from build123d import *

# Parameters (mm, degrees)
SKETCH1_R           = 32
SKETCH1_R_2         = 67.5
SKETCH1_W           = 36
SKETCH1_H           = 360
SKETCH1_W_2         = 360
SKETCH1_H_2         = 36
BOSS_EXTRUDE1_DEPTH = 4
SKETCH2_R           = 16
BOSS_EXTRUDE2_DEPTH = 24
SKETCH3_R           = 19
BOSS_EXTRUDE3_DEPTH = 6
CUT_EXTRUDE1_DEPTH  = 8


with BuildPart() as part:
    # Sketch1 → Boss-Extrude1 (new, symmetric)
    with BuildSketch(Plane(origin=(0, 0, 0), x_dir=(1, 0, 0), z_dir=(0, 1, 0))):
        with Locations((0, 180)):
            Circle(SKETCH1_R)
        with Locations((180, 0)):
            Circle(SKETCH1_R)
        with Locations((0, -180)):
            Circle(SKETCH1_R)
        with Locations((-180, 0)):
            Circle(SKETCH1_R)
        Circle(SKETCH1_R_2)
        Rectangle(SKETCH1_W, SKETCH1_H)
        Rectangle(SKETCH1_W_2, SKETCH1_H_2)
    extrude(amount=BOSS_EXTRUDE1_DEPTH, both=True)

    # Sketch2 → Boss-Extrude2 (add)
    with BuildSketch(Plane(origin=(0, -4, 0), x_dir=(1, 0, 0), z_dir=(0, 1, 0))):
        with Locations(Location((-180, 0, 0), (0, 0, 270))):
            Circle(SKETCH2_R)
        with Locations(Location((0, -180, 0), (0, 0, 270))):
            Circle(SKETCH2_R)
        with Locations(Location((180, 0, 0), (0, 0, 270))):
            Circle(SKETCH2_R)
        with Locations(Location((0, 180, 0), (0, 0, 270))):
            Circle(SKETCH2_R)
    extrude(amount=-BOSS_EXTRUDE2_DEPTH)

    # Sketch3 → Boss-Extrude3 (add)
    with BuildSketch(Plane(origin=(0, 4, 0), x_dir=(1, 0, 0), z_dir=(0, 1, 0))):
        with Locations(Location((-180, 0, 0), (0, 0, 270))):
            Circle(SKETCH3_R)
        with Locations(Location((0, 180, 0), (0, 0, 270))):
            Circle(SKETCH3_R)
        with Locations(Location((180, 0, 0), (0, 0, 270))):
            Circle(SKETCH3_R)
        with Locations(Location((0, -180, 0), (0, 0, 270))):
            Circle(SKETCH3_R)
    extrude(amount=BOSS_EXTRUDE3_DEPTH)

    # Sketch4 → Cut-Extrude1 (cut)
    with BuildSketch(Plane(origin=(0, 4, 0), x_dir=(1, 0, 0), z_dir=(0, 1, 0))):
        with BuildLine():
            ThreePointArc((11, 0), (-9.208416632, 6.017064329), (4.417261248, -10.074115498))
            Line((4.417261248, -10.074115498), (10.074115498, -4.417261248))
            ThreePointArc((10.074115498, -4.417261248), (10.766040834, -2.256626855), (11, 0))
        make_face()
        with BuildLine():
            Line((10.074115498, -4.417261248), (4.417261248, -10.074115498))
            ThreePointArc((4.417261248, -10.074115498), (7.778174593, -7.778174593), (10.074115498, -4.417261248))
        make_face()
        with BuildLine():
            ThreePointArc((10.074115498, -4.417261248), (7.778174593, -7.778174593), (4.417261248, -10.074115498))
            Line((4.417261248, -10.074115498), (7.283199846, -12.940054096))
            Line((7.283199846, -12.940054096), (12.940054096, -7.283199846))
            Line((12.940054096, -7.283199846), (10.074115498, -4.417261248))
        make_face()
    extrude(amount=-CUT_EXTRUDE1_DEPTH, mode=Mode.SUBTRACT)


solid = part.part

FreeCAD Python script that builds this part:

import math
import FreeCAD as App
import Part
import Sketcher
Q = App.Units.Quantity

doc = App.newDocument("Part")
body = doc.addObject("PartDesign::Body", "Body")

sketch1 = body.newObject("Sketcher::SketchObject", "Sketch")
sketch1.AttachmentSupport = (doc.getObject("XZ_Plane"), [""])
sketch1.MapMode = "FlatFace"
sketch1.addGeometry(Part.LineSegment(App.Vector(18, -65, 0), App.Vector(18, -154, 0)), False)
sketch1.addGeometry(Part.ArcOfCircle(Part.Circle(App.Vector(0, -180, 0), App.Vector(0, 0, 1), 32), math.radians(124), math.radians(416)), False)
sketch1.addGeometry(Part.LineSegment(App.Vector(-18, -154, 0), App.Vector(-18, -65, 0)), False)
sketch1.addGeometry(Part.ArcOfCircle(Part.Circle(App.Vector(0, 0, 0), App.Vector(0, 0, 1), 68), math.radians(-165), math.radians(-105)), False)
sketch1.addGeometry(Part.LineSegment(App.Vector(-65, -18, 0), App.Vector(-154, -18, 0)), False)
sketch1.addGeometry(Part.ArcOfCircle(Part.Circle(App.Vector(-180, 0, 0), App.Vector(0, 0, 1), 32), math.radians(34), math.radians(326)), False)
sketch1.addGeometry(Part.LineSegment(App.Vector(-154, 18, 0), App.Vector(-65, 18, 0)), False)
sketch1.addGeometry(Part.ArcOfCircle(Part.Circle(App.Vector(0, 0, 0), App.Vector(0, 0, 1), 68), math.radians(105), math.radians(165)), False)
sketch1.addGeometry(Part.LineSegment(App.Vector(-18, 65, 0), App.Vector(-18, 154, 0)), False)
sketch1.addGeometry(Part.ArcOfCircle(Part.Circle(App.Vector(0, 180, 0), App.Vector(0, 0, 1), 32), math.radians(-56), math.radians(236)), False)
sketch1.addGeometry(Part.LineSegment(App.Vector(18, 154, 0), App.Vector(18, 65, 0)), False)
sketch1.addGeometry(Part.ArcOfCircle(Part.Circle(App.Vector(0, 0, 0), App.Vector(0, 0, 1), 68), math.radians(15), math.radians(75)), False)
sketch1.addGeometry(Part.LineSegment(App.Vector(65, 18, 0), App.Vector(154, 18, 0)), False)
sketch1.addGeometry(Part.ArcOfCircle(Part.Circle(App.Vector(180, 0, 0), App.Vector(0, 0, 1), 32), math.radians(-146), math.radians(146)), False)
sketch1.addGeometry(Part.LineSegment(App.Vector(154, -18, 0), App.Vector(65, -18, 0)), False)
sketch1.addGeometry(Part.ArcOfCircle(Part.Circle(App.Vector(0, 0, 0), App.Vector(0, 0, 1), 68), math.radians(-75), math.radians(-15)), False)
sketch1.addConstraint(Sketcher.Constraint("Coincident", 0, 2, 1, 2))
sketch1.addConstraint(Sketcher.Constraint("Coincident", 1, 1, 2, 1))
sketch1.addConstraint(Sketcher.Constraint("Coincident", 2, 2, 3, 2))
sketch1.addConstraint(Sketcher.Constraint("Coincident", 3, 1, 4, 1))
sketch1.addConstraint(Sketcher.Constraint("Coincident", 4, 2, 5, 2))
sketch1.addConstraint(Sketcher.Constraint("Coincident", 5, 1, 6, 1))
sketch1.addConstraint(Sketcher.Constraint("Coincident", 6, 2, 7, 2))
sketch1.addConstraint(Sketcher.Constraint("Coincident", 7, 1, 8, 1))
sketch1.addConstraint(Sketcher.Constraint("Coincident", 8, 2, 9, 2))
sketch1.addConstraint(Sketcher.Constraint("Coincident", 9, 1, 10, 1))
sketch1.addConstraint(Sketcher.Constraint("Coincident", 10, 2, 11, 2))
sketch1.addConstraint(Sketcher.Constraint("Coincident", 11, 1, 12, 1))
sketch1.addConstraint(Sketcher.Constraint("Coincident", 12, 2, 13, 2))
sketch1.addConstraint(Sketcher.Constraint("Coincident", 13, 1, 14, 1))
sketch1.addConstraint(Sketcher.Constraint("Coincident", 14, 2, 15, 2))
sketch1.addConstraint(Sketcher.Constraint("Coincident", 15, 1, 0, 1))
sketch1.addConstraint(Sketcher.Constraint("Vertical", 0))
sketch1.addConstraint(Sketcher.Constraint("Vertical", 2))
sketch1.addConstraint(Sketcher.Constraint("Horizontal", 4))
sketch1.addConstraint(Sketcher.Constraint("Horizontal", 6))
sketch1.addConstraint(Sketcher.Constraint("Vertical", 8))
sketch1.addConstraint(Sketcher.Constraint("Vertical", 10))
sketch1.addConstraint(Sketcher.Constraint("Horizontal", 12))
sketch1.addConstraint(Sketcher.Constraint("Horizontal", 14))
sketch1.addConstraint(Sketcher.Constraint("Coincident", 3, 3, -1, 1))
sketch1.addConstraint(Sketcher.Constraint("Coincident", 7, 3, -1, 1))
sketch1.addConstraint(Sketcher.Constraint("Coincident", 11, 3, -1, 1))
sketch1.addConstraint(Sketcher.Constraint("Coincident", 15, 3, -1, 1))
sketch1.addConstraint(Sketcher.Constraint("Equal", 1, 5))
sketch1.addConstraint(Sketcher.Constraint("Equal", 3, 7))
sketch1.addConstraint(Sketcher.Constraint("Equal", 5, 9))
sketch1.addConstraint(Sketcher.Constraint("Equal", 7, 11))
sketch1.addConstraint(Sketcher.Constraint("Equal", 9, 13))
sketch1.addConstraint(Sketcher.Constraint("Equal", 11, 15))
sketch1.addConstraint(Sketcher.Constraint("Symmetric", 1, 3, 9, 3, -1, 1))
sketch1.addConstraint(Sketcher.Constraint("Symmetric", 5, 3, 13, 3, -1, 1))
sketch1.addConstraint(Sketcher.Constraint("Symmetric", 0, 2, 1, 1, -2))
sketch1.addConstraint(Sketcher.Constraint("Symmetric", 5, 1, 12, 2, -2))
sketch1.addConstraint(Sketcher.Constraint("Horizontal", 8, 2, 9, 1))
sketch1.addConstraint(Sketcher.Constraint("Horizontal", 4, 2, 13, 1))
sketch1.addConstraint(Sketcher.Constraint("Vertical", 4, 2, 5, 1))
sketch1.addConstraint(Sketcher.Constraint("Vertical", 2, 2, 7, 1))
sketch1.addConstraint(Sketcher.Constraint("Equal", 14, 0))
sketch1.addConstraint(Sketcher.Constraint("Radius", 1, 32.0))
sketch1.addConstraint(Sketcher.Constraint("Radius", 3, 67.5))
sketch1.addConstraint(Sketcher.Constraint("DistanceY", 1, 3, -1, 1, 180.0))
sketch1.addConstraint(Sketcher.Constraint("DistanceX", 5, 3, -1, 1, 180.0))
sketch1.addConstraint(Sketcher.Constraint("DistanceX", -1, 1, 0, 2, 18.0))
pad1 = body.newObject("PartDesign::Pad", "Pad")
pad1.Profile = sketch1
pad1.Length = 8
pad1.Midplane = True

sketch2 = body.newObject("Sketcher::SketchObject", "Sketch001")
sketch2.AttachmentSupport = (doc.getObject("XZ_Plane"), [""])
sketch2.MapMode = "FlatFace"
sketch2.AttachmentOffset = App.Placement(App.Vector(0, 0, 4), App.Rotation())
sketch2.addGeometry(Part.Circle(App.Vector(-180, 0, 0), App.Vector(0, 0, 1), 16), False)
sketch2.addGeometry(Part.Circle(App.Vector(0, 180, 0), App.Vector(0, 0, 1), 16), False)
sketch2.addGeometry(Part.Circle(App.Vector(180, 0, 0), App.Vector(0, 0, 1), 16), False)
sketch2.addGeometry(Part.Circle(App.Vector(0, -180, 0), App.Vector(0, 0, 1), 16), False)
sketch2.addConstraint(Sketcher.Constraint("Equal", 0, 1))
sketch2.addConstraint(Sketcher.Constraint("Equal", 1, 2))
sketch2.addConstraint(Sketcher.Constraint("Equal", 2, 3))
sketch2.addConstraint(Sketcher.Constraint("Symmetric", 0, 3, 2, 3, -1, 1))
sketch2.addConstraint(Sketcher.Constraint("Symmetric", 1, 3, 3, 3, -1, 1))
sketch2.addConstraint(Sketcher.Constraint("PointOnObject", 0, 3, -1))
sketch2.addConstraint(Sketcher.Constraint("PointOnObject", 1, 3, -2))
sketch2.addConstraint(Sketcher.Constraint("Diameter", 0, 32.0))
sketch2.addConstraint(Sketcher.Constraint("DistanceX", 0, 3, -1, 1, 180.0))
sketch2.addConstraint(Sketcher.Constraint("DistanceY", -1, 1, 1, 3, 180.0))
pad2 = body.newObject("PartDesign::Pad", "Pad001")
pad2.Profile = sketch2
pad2.Length = 24

sketch3 = body.newObject("Sketcher::SketchObject", "Sketch002")
sketch3.AttachmentSupport = (doc.getObject("XZ_Plane"), [""])
sketch3.MapMode = "FlatFace"
sketch3.AttachmentOffset = App.Placement(App.Vector(0, 0, -4), App.Rotation())
sketch3.addGeometry(Part.Circle(App.Vector(-180, 0, 0), App.Vector(0, 0, 1), 19), False)
sketch3.addGeometry(Part.Circle(App.Vector(0, -180, 0), App.Vector(0, 0, 1), 19), False)
sketch3.addGeometry(Part.Circle(App.Vector(180, 0, 0), App.Vector(0, 0, 1), 19), False)
sketch3.addGeometry(Part.Circle(App.Vector(0, 180, 0), App.Vector(0, 0, 1), 19), False)
sketch3.addConstraint(Sketcher.Constraint("Equal", 0, 1))
sketch3.addConstraint(Sketcher.Constraint("Equal", 1, 2))
sketch3.addConstraint(Sketcher.Constraint("Equal", 2, 3))
sketch3.addConstraint(Sketcher.Constraint("Symmetric", 0, 3, 2, 3, -1, 1))
sketch3.addConstraint(Sketcher.Constraint("Symmetric", 1, 3, 3, 3, -1, 1))
sketch3.addConstraint(Sketcher.Constraint("PointOnObject", 0, 3, -1))
sketch3.addConstraint(Sketcher.Constraint("PointOnObject", 1, 3, -2))
sketch3.addConstraint(Sketcher.Constraint("Diameter", 0, 38.0))
sketch3.addConstraint(Sketcher.Constraint("DistanceX", 0, 3, -1, 1, 180.0))
sketch3.addConstraint(Sketcher.Constraint("DistanceY", 1, 3, -1, 1, 180.0))
pad3 = body.newObject("PartDesign::Pad", "Pad002")
pad3.Profile = sketch3
pad3.Length = 6
pad3.Reversed = True

sketch4 = body.newObject("Sketcher::SketchObject", "Sketch003")
sketch4.AttachmentSupport = (doc.getObject("XZ_Plane"), [""])
sketch4.MapMode = "FlatFace"
sketch4.AttachmentOffset = App.Placement(App.Vector(0, 0, -4), App.Rotation())
sketch4.addGeometry(Part.ArcOfCircle(Part.Circle(App.Vector(0, 0, 0), App.Vector(0, 0, 1), 11), math.radians(66), math.radians(360)), False)
sketch4.addGeometry(Part.LineSegment(App.Vector(4.4, 10.1, 0), App.Vector(7.3, 12.9, 0)), False)
sketch4.addGeometry(Part.LineSegment(App.Vector(7.3, 12.9, 0), App.Vector(12.9, 7.3, 0)), False)
sketch4.addGeometry(Part.LineSegment(App.Vector(12.9, 7.3, 0), App.Vector(10.1, 4.4, 0)), False)
sketch4.addGeometry(Part.ArcOfCircle(Part.Circle(App.Vector(0, 0, 0), App.Vector(0, 0, 1), 11), math.radians(0), math.radians(24)), False)
sketch4.addConstraint(Sketcher.Constraint("Coincident", 0, 1, 1, 1))
sketch4.addConstraint(Sketcher.Constraint("Coincident", 1, 2, 2, 1))
sketch4.addConstraint(Sketcher.Constraint("Coincident", 2, 2, 3, 1))
sketch4.addConstraint(Sketcher.Constraint("Coincident", 3, 2, 4, 2))
sketch4.addConstraint(Sketcher.Constraint("Tangent", 4, 1, 0, 2))
sketch4.addConstraint(Sketcher.Constraint("Coincident", 0, 3, -1, 1))
sketch4.addConstraint(Sketcher.Constraint("Equal", 0, 4))
sketch4.addConstraint(Sketcher.Constraint("PointOnObject", 4, 1, -1))
sketch4.addConstraint(Sketcher.Constraint("Perpendicular", 1, 2))
sketch4.addConstraint(Sketcher.Constraint("Perpendicular", 2, 3))
sketch4.addConstraint(Sketcher.Constraint("Equal", 1, 3))
sketch4.addConstraint(Sketcher.Constraint("Radius", 0, 11.0))
sketch4.addConstraint(Sketcher.Constraint("Angle", 1, Q("45 deg")))
sketch4.addConstraint(Sketcher.Constraint("Distance", 2, 8.0))
sketch4.addConstraint(Sketcher.Constraint("DistanceX", -1, 1, 1, 2, 7.2832))
pocket1 = body.newObject("PartDesign::Pocket", "Pocket")
pocket1.Profile = sketch4
pocket1.Length = 8
pocket1.Reversed = True

doc.recompute()
